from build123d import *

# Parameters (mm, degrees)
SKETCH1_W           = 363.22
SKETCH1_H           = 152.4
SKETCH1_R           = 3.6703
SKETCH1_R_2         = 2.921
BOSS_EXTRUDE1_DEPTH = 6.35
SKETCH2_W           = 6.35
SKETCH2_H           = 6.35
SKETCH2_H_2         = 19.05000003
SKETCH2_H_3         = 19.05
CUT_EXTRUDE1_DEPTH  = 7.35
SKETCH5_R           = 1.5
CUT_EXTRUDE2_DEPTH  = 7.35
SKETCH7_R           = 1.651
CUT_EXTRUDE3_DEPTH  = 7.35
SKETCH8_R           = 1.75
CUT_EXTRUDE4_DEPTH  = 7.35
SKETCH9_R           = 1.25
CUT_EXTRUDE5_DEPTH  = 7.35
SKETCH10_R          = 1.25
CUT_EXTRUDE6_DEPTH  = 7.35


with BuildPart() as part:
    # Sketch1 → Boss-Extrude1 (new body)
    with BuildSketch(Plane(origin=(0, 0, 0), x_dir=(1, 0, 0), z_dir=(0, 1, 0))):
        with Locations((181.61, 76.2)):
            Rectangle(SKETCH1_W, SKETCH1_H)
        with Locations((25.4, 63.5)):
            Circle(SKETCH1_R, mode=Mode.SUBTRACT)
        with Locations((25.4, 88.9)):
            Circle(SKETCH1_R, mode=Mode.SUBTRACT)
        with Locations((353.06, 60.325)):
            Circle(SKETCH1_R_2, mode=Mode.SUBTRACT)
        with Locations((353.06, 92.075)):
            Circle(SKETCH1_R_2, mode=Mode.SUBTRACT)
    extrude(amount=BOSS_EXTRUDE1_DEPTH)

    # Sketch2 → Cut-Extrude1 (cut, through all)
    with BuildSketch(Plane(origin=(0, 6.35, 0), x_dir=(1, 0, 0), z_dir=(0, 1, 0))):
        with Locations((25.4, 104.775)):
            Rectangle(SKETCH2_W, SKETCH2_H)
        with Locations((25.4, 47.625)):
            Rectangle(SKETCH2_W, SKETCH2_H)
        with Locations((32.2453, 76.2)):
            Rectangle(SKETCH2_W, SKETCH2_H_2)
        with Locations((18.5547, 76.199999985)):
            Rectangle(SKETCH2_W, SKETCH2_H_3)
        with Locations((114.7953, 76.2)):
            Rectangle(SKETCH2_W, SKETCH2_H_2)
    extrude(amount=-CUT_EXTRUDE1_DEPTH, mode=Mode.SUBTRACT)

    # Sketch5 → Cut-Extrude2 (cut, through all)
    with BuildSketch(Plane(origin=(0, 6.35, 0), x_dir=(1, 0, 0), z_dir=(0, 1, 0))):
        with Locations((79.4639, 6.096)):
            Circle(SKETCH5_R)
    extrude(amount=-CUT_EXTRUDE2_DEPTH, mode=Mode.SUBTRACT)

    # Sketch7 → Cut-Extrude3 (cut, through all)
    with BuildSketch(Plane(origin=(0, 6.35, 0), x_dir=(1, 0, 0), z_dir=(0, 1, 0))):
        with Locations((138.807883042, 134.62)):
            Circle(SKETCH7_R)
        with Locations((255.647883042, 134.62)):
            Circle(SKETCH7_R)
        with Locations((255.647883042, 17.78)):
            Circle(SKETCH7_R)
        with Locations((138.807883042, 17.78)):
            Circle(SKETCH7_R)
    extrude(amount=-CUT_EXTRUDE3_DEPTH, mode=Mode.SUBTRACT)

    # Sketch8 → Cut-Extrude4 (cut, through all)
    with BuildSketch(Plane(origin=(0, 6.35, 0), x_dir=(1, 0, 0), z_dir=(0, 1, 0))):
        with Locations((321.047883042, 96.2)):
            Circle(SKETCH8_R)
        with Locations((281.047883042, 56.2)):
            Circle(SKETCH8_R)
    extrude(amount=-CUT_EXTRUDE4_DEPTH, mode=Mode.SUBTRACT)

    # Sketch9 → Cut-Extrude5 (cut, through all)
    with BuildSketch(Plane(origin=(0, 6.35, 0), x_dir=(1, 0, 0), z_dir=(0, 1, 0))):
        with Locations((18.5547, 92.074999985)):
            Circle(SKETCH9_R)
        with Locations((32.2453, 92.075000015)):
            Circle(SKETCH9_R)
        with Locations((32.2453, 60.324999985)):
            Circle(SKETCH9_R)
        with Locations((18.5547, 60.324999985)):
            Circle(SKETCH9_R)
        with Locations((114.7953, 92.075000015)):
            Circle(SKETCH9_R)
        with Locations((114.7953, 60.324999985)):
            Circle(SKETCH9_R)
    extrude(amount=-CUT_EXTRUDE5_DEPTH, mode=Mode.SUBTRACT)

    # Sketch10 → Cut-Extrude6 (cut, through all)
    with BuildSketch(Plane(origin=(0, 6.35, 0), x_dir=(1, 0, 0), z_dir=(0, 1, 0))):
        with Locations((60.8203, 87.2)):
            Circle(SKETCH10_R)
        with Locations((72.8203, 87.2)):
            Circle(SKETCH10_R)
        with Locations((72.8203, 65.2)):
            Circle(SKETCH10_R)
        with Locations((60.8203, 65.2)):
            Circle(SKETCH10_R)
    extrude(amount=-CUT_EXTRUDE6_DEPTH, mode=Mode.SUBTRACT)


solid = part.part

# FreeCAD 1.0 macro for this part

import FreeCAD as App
import Part
import Sketcher

V = App.Vector
Q = App.Units.Quantity

doc = App.newDocument("Part")
body = doc.addObject("PartDesign::Body", "Body")

# Sketch on XZ plane
sketch1 = body.newObject("Sketcher::SketchObject", "Sketch")
sketch1.AttachmentSupport = (doc.getObject("XZ_Plane"), [""])
sketch1.MapMode = "FlatFace"
sketch1.addGeometry([
    Part.LineSegment(V(0, -152.4, 0), V(0, 0, 0)),  # 0
    Part.LineSegment(V(0, 0, 0), V(363.2, 0, 0)),  # 1
    Part.LineSegment(V(363.2, 0, 0), V(363.2, -152.4, 0)),  # 2
    Part.LineSegment(V(363.2, -152.4, 0), V(0, -152.4, 0)),  # 3
    Part.Circle(V(25.4, -63.5, 0), V(0, 0, 1), 3.7),  # 4
    Part.Circle(V(353.1, -60.3, 0), V(0, 0, 1), 2.9),  # 5
    Part.Circle(V(25.4, -88.9, 0), V(0, 0, 1), 3.7),  # 6
    Part.Circle(V(353.1, -92.1, 0), V(0, 0, 1), 2.9),  # 7
], False)
sketch1.addConstraint([
    Sketcher.Constraint("Coincident", 0, 2, 1, 1),
    Sketcher.Constraint("Coincident", 1, 2, 2, 1),
    Sketcher.Constraint("Coincident", 2, 2, 3, 1),
    Sketcher.Constraint("Coincident", 3, 2, 0, 1),
    Sketcher.Constraint("Vertical", 0),
    Sketcher.Constraint("Horizontal", 1),
    Sketcher.Constraint("Vertical", 2),
    Sketcher.Constraint("Horizontal", 3),
    Sketcher.Constraint("Coincident", 0, 2, -1, 1),
    Sketcher.Constraint("Equal", 4, 6),
    Sketcher.Constraint("Equal", 5, 7),
    Sketcher.Constraint("Vertical", 4, 3, 6, 3),
    Sketcher.Constraint("Vertical", 5, 3, 7, 3),
    Sketcher.Constraint("Diameter", 5, Q("0.23 in")),
    Sketcher.Constraint("DistanceY", 0, 1, 0, 2, Q("6 in")),
    Sketcher.Constraint("Diameter", 4, Q("0.289 in")),
    Sketcher.Constraint("DistanceX", 1, 1, 1, 2, Q("14.3 in")),
    Sketcher.Constraint("DistanceX", -1, 1, 4, 3, Q("1 in")),
    Sketcher.Constraint("DistanceY", 6, 3, 4, 3, Q("1 in")),
    Sketcher.Constraint("DistanceY", 4, 3, -1, 1, Q("2.5 in")),
    Sketcher.Constraint("DistanceX", -1, 1, 5, 3, Q("13.9 in")),
    Sketcher.Constraint("DistanceY", 7, 3, 5, 3, Q("1.25 in")),
    Sketcher.Constraint("DistanceY", 5, 3, -1, 1, Q("2.375 in")),
])
pad1 = body.newObject("PartDesign::Pad", "Pad")
pad1.Profile = sketch1
pad1.Length = Q("0.25 in")
pad1.Reversed = True

# Sketch on XZ plane
sketch2 = body.newObject("Sketcher::SketchObject", "Sketch001")
sketch2.AttachmentSupport = (doc.getObject("XZ_Plane"), [""])
sketch2.MapMode = "FlatFace"
sketch2.AttachmentOffset = App.Placement(V(0, 0, -0.25 * 25.4), App.Rotation())
sketch2.addGeometry([
    Part.LineSegment(V(22, -108, 0), V(22, -102, 0)),  # 0
    Part.LineSegment(V(22, -102, 0), V(29, -102, 0)),  # 1
    Part.LineSegment(V(29, -102, 0), V(29, -108, 0)),  # 2
    Part.LineSegment(V(29, -108, 0), V(22, -108, 0)),  # 3
    Part.LineSegment(V(22, -51, 0), V(22, -44, 0)),  # 4
    Part.LineSegment(V(22, -44, 0), V(29, -44, 0)),  # 5
    Part.LineSegment(V(29, -44, 0), V(29, -51, 0)),  # 6
    Part.LineSegment(V(29, -51, 0), V(22, -51, 0)),  # 7
    Part.LineSegment(V(29, -86, 0), V(29, -67, 0)),  # 8
    Part.LineSegment(V(29, -67, 0), V(35, -67, 0)),  # 9
    Part.LineSegment(V(35, -67, 0), V(35, -86, 0)),  # 10
    Part.LineSegment(V(35, -86, 0), V(29, -86, 0)),  # 11
    Part.LineSegment(V(15, -86, 0), V(15, -67, 0)),  # 12
    Part.LineSegment(V(15, -67, 0), V(22, -67, 0)),  # 13
    Part.LineSegment(V(22, -67, 0), V(22, -86, 0)),  # 14
    Part.LineSegment(V(22, -86, 0), V(15, -86, 0)),  # 15
    Part.LineSegment(V(112, -86, 0), V(112, -67, 0)),  # 16
    Part.LineSegment(V(112, -67, 0), V(118, -67, 0)),  # 17
    Part.LineSegment(V(118, -67, 0), V(118, -86, 0)),  # 18
    Part.LineSegment(V(118, -86, 0), V(112, -86, 0)),  # 19
], False)
sketch2.addConstraint([
    Sketcher.Constraint("Coincident", 0, 2, 1, 1),
    Sketcher.Constraint("Coincident", 1, 2, 2, 1),
    Sketcher.Constraint("Coincident", 2, 2, 3, 1),
    Sketcher.Constraint("Coincident", 3, 2, 0, 1),
    Sketcher.Constraint("Coincident", 4, 2, 5, 1),
    Sketcher.Constraint("Coincident", 5, 2, 6, 1),
    Sketcher.Constraint("Coincident", 6, 2, 7, 1),
    Sketcher.Constraint("Coincident", 7, 2, 4, 1),
    Sketcher.Constraint("Coincident", 8, 2, 9, 1),
    Sketcher.Constraint("Coincident", 9, 2, 10, 1),
    Sketcher.Constraint("Coincident", 10, 2, 11, 1),
    Sketcher.Constraint("Coincident", 11, 2, 8, 1),
    Sketcher.Constraint("Coincident", 12, 2, 13, 1),
    Sketcher.Constraint("Coincident", 13, 2, 14, 1),
    Sketcher.Constraint("Coincident", 14, 2, 15, 1),
    Sketcher.Constraint("Coincident", 15, 2, 12, 1),
    Sketcher.Constraint("Coincident", 16, 2, 17, 1),
    Sketcher.Constraint("Coincident", 17, 2, 18, 1),
    Sketcher.Constraint("Coincident", 18, 2, 19, 1),
    Sketcher.Constraint("Coincident", 19, 2, 16, 1),
    Sketcher.Constraint("Vertical", 0),
    Sketcher.Constraint("Horizontal", 1),
    Sketcher.Constraint("Vertical", 2),
    Sketcher.Constraint("Horizontal", 3),
    Sketcher.Constraint("Vertical", 4),
    Sketcher.Constraint("Horizontal", 5),
    Sketcher.Constraint("Vertical", 6),
    Sketcher.Constraint("Horizontal", 7),
    Sketcher.Constraint("Vertical", 8),
    Sketcher.Constraint("Horizontal", 9),
    Sketcher.Constraint("Vertical", 10),
    Sketcher.Constraint("Horizontal", 11),
    Sketcher.Constraint("Vertical", 12),
    Sketcher.Constraint("Horizontal", 13),
    Sketcher.Constraint("Vertical", 14),
    Sketcher.Constraint("Horizontal", 15),
    Sketcher.Constraint("Vertical", 16),
    Sketcher.Constraint("Horizontal", 17),
    Sketcher.Constraint("Vertical", 18),
    Sketcher.Constraint("Horizontal", 19),
    Sketcher.Constraint("Horizontal", 9, 2, 12, 2),
    Sketcher.Constraint("Horizontal", 11, 2, 14, 2),
    Sketcher.Constraint("Horizontal", 13, 2, 16, 2),
    Sketcher.Constraint("Horizontal", 15, 2, 18, 2),
    Sketcher.Constraint("Vertical", 3, 2, 4, 2),
    Sketcher.Constraint("Vertical", 2, 2, 5, 2),
    Sketcher.Constraint("Equal", 7, 9),
    Sketcher.Constraint("Equal", 11, 13),
    Sketcher.Constraint("Equal", 15, 17),
    Sketcher.Constraint("Equal", 19, 0),
    Sketcher.Constraint("Equal", 2, 4),
    Sketcher.Constraint("DistanceY", 0, 2, -1, 1, Q("4 in")),
    Sketcher.Constraint("DistanceY", 6, 2, -1, 1, Q("2 in")),
    Sketcher.Constraint("DistanceX", 9, 2, 16, 2, Q("3 in")),
    Sketcher.Constraint("DistanceX", 1, 1, 1, 2, Q("0.25 in")),
    Sketcher.Constraint("DistanceY", 8, 1, 8, 2, Q("0.75 in")),
    Sketcher.Constraint("DistanceX", -1, 1, 0, 2, Q("0.875 in")),
    Sketcher.Constraint("DistanceY", 8, 2, -1, 1, Q("2.625 in")),
    Sketcher.Constraint("DistanceX", 12, 2, 8, 2, Q("0.539 in")),
    Sketcher.Constraint("DistanceX", -1, 1, 8, 2, Q("1.1445 in")),
])
pocket1 = body.newObject("PartDesign::Pocket", "Pocket")
pocket1.Profile = sketch2
pocket1.Type = "ThroughAll"
pocket1.Reversed = True

# Sketch on XZ plane
sketch3 = body.newObject("Sketcher::SketchObject", "Sketch002")
sketch3.AttachmentSupport = (doc.getObject("XZ_Plane"), [""])
sketch3.MapMode = "FlatFace"
sketch3.AttachmentOffset = App.Placement(V(0, 0, -0.25 * 25.4), App.Rotation())
sketch3.addGeometry(Part.Circle(V(79.5, -6.1, 0), V(0, 0, 1), 1.5), False)
sketch3.addConstraint([
    Sketcher.Constraint("Diameter", 0, 3.0),
    Sketcher.Constraint("DistanceY", 0, 3, -1, 1, Q("0.24 in")),
    Sketcher.Constraint("DistanceX", -1, 1, 0, 3, Q("3.1285 in")),
])
pocket2 = body.newObject("PartDesign::Pocket", "Pocket001")
pocket2.Profile = sketch3
pocket2.Type = "ThroughAll"
pocket2.Reversed = True

# Sketch on XZ plane
sketch4 = body.newObject("Sketcher::SketchObject", "Sketch003")
sketch4.AttachmentSupport = (doc.getObject("XZ_Plane"), [""])
sketch4.MapMode = "FlatFace"
sketch4.AttachmentOffset = App.Placement(V(0, 0, -0.25 * 25.4), App.Rotation())
sketch4.addGeometry([
    Part.Circle(V(138.8, -134.6, 0), V(0, 0, 1), 1.7),
    Part.Circle(V(255.6, -134.6, 0), V(0, 0, 1), 1.7),
    Part.Circle(V(255.6, -17.8, 0), V(0, 0, 1), 1.7),
    Part.Circle(V(138.8, -17.8, 0), V(0, 0, 1), 1.7),
], False)
sketch4.addConstraint([
    Sketcher.Constraint("Equal", 0, 1),
    Sketcher.Constraint("Equal", 1, 2),
    Sketcher.Constraint("Equal", 2, 3),
    Sketcher.Constraint("Horizontal", 0, 3, 1, 3),
    Sketcher.Constraint("Horizontal", 2, 3, 3, 3),
    Sketcher.Constraint("Vertical", 1, 3, 2, 3),
    Sketcher.Constraint("Vertical", 0, 3, 3, 3),
    Sketcher.Constraint("Diameter", 0, Q("0.13 in")),
    Sketcher.Constraint("DistanceY", 0, 3, -1, 1, Q("5.3 in")),
    Sketcher.Constraint("DistanceY", 2, 3, -1, 1, Q("0.7 in")),
    Sketcher.Constraint("DistanceX", 0, 3, 1, 3, Q("4.6 in")),
    Sketcher.Constraint("DistanceX", -1, 1, 0, 3, 138.807883),
])
pocket3 = body.newObject("PartDesign::Pocket", "Pocket002")
pocket3.Profile = sketch4
pocket3.Type = "ThroughAll"
pocket3.Reversed = True

# Sketch on XZ plane
sketch5 = body.newObject("Sketcher::SketchObject", "Sketch004")
sketch5.AttachmentSupport = (doc.getObject("XZ_Plane"), [""])
sketch5.MapMode = "FlatFace"
sketch5.AttachmentOffset = App.Placement(V(0, 0, -0.25 * 25.4), App.Rotation())
sketch5.addGeometry([
    Part.Circle(V(321, -96.2, 0), V(0, 0, 1), 1.8),
    Part.Circle(V(281, -56.2, 0), V(0, 0, 1), 1.8),
], False)
sketch5.addConstraint([
    Sketcher.Constraint("Equal", 0, 1),
    Sketcher.Constraint("Diameter", 0, 3.5),
    Sketcher.Constraint("DistanceY", 0, 3, -1, 1, 96.2),
    Sketcher.Constraint("DistanceY", 1, 3, -1, 1, 56.2),
    Sketcher.Constraint("DistanceX", 1, 3, 0, 3, 40.0),
    Sketcher.Constraint("DistanceX", -1, 1, 0, 3, 321.047883),
])
pocket4 = body.newObject("PartDesign::Pocket", "Pocket003")
pocket4.Profile = sketch5
pocket4.Type = "ThroughAll"
pocket4.Reversed = True

# Sketch on XZ plane
sketch6 = body.newObject("Sketcher::SketchObject", "Sketch005")
sketch6.AttachmentSupport = (doc.getObject("XZ_Plane"), [""])
sketch6.MapMode = "FlatFace"
sketch6.AttachmentOffset = App.Placement(V(0, 0, -0.25 * 25.4), App.Rotation())
sketch6.addGeometry([
    Part.Circle(V(18.6, -92.1, 0), V(0, 0, 1), 1.2),  # 0
    Part.Circle(V(32.2, -92.1, 0), V(0, 0, 1), 1.2),  # 1
    Part.Circle(V(32.2, -60.3, 0), V(0, 0, 1), 1.2),  # 2
    Part.Circle(V(18.6, -60.3, 0), V(0, 0, 1), 1.2),  # 3
    Part.Circle(V(114.8, -92.1, 0), V(0, 0, 1), 1.2),  # 4
    Part.Circle(V(114.8, -60.3, 0), V(0, 0, 1), 1.2),  # 5
], False)
sketch6.addConstraint([
    Sketcher.Constraint("Equal", 0, 1),
    Sketcher.Constraint("Equal", 1, 2),
    Sketcher.Constraint("Equal", 2, 3),
    Sketcher.Constraint("Equal", 3, 4),
    Sketcher.Constraint("Equal", 4, 5),
    Sketcher.Constraint("Horizontal", 0, 3, 1, 3),
    Sketcher.Constraint("Horizontal", 2, 3, 3, 3),
    Sketcher.Constraint("Horizontal", 1, 3, 4, 3),
    Sketcher.Constraint("Horizontal", 3, 3, 5, 3),
    Sketcher.Constraint("Vertical", 1, 3, 2, 3),
    Sketcher.Constraint("Vertical", 0, 3, 3, 3),
    Sketcher.Constraint("Vertical", 4, 3, 5, 3),
    Sketcher.Constraint("Diameter", 0, 2.5),
    Sketcher.Constraint("DistanceY", 1, 3, 2, 3, Q("1.25 in")),
    Sketcher.Constraint("DistanceX", 1, 3, 4, 3, Q("3.25 in")),
    Sketcher.Constraint("DistanceY", 0, 3, -1, 1, Q("3.625 in")),
    Sketcher.Constraint("DistanceX", 0, 3, 1, 3, Q("0.539 in")),
    Sketcher.Constraint("DistanceX", -1, 1, 0, 3, Q("0.7305 in")),
])
pocket5 = body.newObject("PartDesign::Pocket", "Pocket004")
pocket5.Profile = sketch6
pocket5.Type = "ThroughAll"
pocket5.Reversed = True

# Sketch on XZ plane
sketch7 = body.newObject("Sketcher::SketchObject", "Sketch006")
sketch7.AttachmentSupport = (doc.getObject("XZ_Plane"), [""])
sketch7.MapMode = "FlatFace"
sketch7.AttachmentOffset = App.Placement(V(0, 0, -0.25 * 25.4), App.Rotation())
sketch7.addGeometry([
    Part.Circle(V(60.8, -87.2, 0), V(0, 0, 1), 1.2),
    Part.Circle(V(72.8, -87.2, 0), V(0, 0, 1), 1.2),
    Part.Circle(V(72.8, -65.2, 0), V(0, 0, 1), 1.2),
    Part.Circle(V(60.8, -65.2, 0), V(0, 0, 1), 1.2),
], False)
sketch7.addConstraint([
    Sketcher.Constraint("Equal", 0, 1),
    Sketcher.Constraint("Equal", 1, 2),
    Sketcher.Constraint("Equal", 2, 3),
    Sketcher.Constraint("Horizontal", 0, 3, 1, 3),
    Sketcher.Constraint("Horizontal", 2, 3, 3, 3),
    Sketcher.Constraint("Vertical", 1, 3, 2, 3),
    Sketcher.Constraint("Vertical", 0, 3, 3, 3),
    Sketcher.Constraint("Diameter", 0, 2.5),
    Sketcher.Constraint("DistanceX", -1, 1, 0, 3, Q("2.3945 in")),
    Sketcher.Constraint("DistanceY", 0, 3, -1, 1, 87.2),
    Sketcher.Constraint("DistanceX", -1, 1, 1, 3, 72.8203),
    Sketcher.Constraint("DistanceY", 2, 3, -1, 1, 65.2),
])
pocket6 = body.newObject("PartDesign::Pocket", "Pocket005")
pocket6.Profile = sketch7
pocket6.Type = "ThroughAll"
pocket6.Reversed = True

doc.recompute()
